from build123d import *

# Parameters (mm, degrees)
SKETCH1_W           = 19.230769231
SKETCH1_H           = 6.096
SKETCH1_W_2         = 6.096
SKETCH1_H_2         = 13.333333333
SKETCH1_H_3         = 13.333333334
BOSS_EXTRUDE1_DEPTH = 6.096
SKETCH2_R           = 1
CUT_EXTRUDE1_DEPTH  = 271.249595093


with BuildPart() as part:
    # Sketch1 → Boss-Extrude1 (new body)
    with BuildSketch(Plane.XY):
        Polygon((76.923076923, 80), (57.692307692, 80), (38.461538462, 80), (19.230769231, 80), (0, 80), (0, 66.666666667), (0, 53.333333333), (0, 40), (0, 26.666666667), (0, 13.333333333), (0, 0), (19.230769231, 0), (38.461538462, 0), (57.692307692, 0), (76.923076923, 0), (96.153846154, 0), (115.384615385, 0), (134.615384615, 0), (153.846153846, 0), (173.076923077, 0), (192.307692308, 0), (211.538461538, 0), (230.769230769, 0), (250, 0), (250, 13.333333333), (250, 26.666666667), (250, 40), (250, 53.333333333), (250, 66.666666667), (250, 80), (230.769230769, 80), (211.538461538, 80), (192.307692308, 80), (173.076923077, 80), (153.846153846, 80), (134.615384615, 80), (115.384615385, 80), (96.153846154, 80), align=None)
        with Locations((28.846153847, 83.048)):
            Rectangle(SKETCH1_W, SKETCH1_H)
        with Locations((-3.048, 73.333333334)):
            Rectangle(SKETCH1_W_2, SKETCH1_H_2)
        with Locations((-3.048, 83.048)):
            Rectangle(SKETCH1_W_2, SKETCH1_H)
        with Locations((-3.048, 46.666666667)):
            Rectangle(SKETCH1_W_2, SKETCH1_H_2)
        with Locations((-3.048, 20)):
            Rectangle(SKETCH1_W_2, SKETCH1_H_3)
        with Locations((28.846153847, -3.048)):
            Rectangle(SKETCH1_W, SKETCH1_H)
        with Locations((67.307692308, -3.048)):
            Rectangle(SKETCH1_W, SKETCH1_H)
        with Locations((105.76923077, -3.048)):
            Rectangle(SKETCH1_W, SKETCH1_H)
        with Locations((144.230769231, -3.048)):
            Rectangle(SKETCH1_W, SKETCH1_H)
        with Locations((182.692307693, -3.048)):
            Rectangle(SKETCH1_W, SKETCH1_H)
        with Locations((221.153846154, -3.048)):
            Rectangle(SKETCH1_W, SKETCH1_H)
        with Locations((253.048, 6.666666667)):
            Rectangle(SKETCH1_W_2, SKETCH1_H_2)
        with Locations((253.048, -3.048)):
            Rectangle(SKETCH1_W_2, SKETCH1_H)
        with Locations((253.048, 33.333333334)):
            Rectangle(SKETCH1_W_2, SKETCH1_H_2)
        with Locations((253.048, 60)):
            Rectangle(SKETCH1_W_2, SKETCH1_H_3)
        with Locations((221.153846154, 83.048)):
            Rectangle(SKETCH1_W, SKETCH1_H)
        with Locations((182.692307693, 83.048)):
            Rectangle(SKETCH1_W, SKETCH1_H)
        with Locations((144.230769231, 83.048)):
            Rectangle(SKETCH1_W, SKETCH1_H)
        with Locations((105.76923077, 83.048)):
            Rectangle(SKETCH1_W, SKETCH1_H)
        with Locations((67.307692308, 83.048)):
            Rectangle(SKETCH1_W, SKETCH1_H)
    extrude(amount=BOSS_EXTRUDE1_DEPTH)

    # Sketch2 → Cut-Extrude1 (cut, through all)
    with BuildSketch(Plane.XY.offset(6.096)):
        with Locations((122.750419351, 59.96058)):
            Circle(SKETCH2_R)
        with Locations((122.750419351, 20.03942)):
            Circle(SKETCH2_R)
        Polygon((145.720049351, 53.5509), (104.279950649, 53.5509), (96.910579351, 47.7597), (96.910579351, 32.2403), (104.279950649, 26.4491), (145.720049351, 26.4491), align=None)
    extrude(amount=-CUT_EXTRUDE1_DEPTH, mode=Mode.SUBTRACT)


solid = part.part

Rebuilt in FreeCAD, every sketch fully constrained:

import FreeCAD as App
import Part
import Sketcher

V = App.Vector
Q = App.Units.Quantity

doc = App.newDocument("Part")
body = doc.addObject("PartDesign::Body", "Body")

# Sketch on XY plane
sketch1 = doc.addObject("Sketcher::SketchObject", "Sketch")
body.addObject(sketch1)
sketch1.AttachmentSupport = (doc.XY_Plane, [""])
sketch1.MapMode = "FlatFace"
sketch1.addGeometry([
    Part.LineSegment(V(0, 67, 0), V(0, 53, 0)),  # 0
    Part.LineSegment(V(0, 53, 0), V(-6, 53, 0)),  # 1
    Part.LineSegment(V(-6, 53, 0), V(-6, 40, 0)),  # 2
    Part.LineSegment(V(-6, 40, 0), V(0, 40, 0)),  # 3
    Part.LineSegment(V(0, 40, 0), V(0, 27, 0)),  # 4
    Part.LineSegment(V(0, 27, 0), V(-6, 27, 0)),  # 5
    Part.LineSegment(V(-6, 27, 0), V(-6, 13, 0)),  # 6
    Part.LineSegment(V(-6, 13, 0), V(0, 13, 0)),  # 7
    Part.LineSegment(V(0, 13, 0), V(0, 0, 0)),  # 8
    Part.LineSegment(V(0, 0, 0), V(19, 0, 0)),  # 9
    Part.LineSegment(V(19, 0, 0), V(19, -6, 0)),  # 10
    Part.LineSegment(V(19, -6, 0), V(38, -6, 0)),  # 11
    Part.LineSegment(V(38, -6, 0), V(38, 0, 0)),  # 12
    Part.LineSegment(V(38, 0, 0), V(58, 0, 0)),  # 13
    Part.LineSegment(V(58, 0, 0), V(58, -6, 0)),  # 14
    Part.LineSegment(V(58, -6, 0), V(77, -6, 0)),  # 15
    Part.LineSegment(V(77, -6, 0), V(77, 0, 0)),  # 16
    Part.LineSegment(V(77, 0, 0), V(96, 0, 0)),  # 17
    Part.LineSegment(V(96, 0, 0), V(96, -6, 0)),  # 18
    Part.LineSegment(V(96, -6, 0), V(115, -6, 0)),  # 19
    Part.LineSegment(V(115, -6, 0), V(115, 0, 0)),  # 20
    Part.LineSegment(V(115, 0, 0), V(135, 0, 0)),  # 21
    Part.LineSegment(V(135, 0, 0), V(135, -6, 0)),  # 22
    Part.LineSegment(V(135, -6, 0), V(154, -6, 0)),  # 23
    Part.LineSegment(V(154, -6, 0), V(154, 0, 0)),  # 24
    Part.LineSegment(V(154, 0, 0), V(173, 0, 0)),  # 25
    Part.LineSegment(V(173, 0, 0), V(173, -6, 0)),  # 26
    Part.LineSegment(V(173, -6, 0), V(192, -6, 0)),  # 27
    Part.LineSegment(V(192, -6, 0), V(192, 0, 0)),  # 28
    Part.LineSegment(V(192, 0, 0), V(212, 0, 0)),  # 29
    Part.LineSegment(V(212, 0, 0), V(212, -6, 0)),  # 30
    Part.LineSegment(V(212, -6, 0), V(231, -6, 0)),  # 31
    Part.LineSegment(V(231, -6, 0), V(231, 0, 0)),  # 32
    Part.LineSegment(V(231, 0, 0), V(250, 0, 0)),  # 33
    Part.LineSegment(V(250, 0, 0), V(250, -6, 0)),  # 34
    Part.LineSegment(V(250, -6, 0), V(256, -6, 0)),  # 35
    Part.LineSegment(V(256, -6, 0), V(256, 13, 0)),  # 36
    Part.LineSegment(V(256, 13, 0), V(250, 13, 0)),  # 37
    Part.LineSegment(V(250, 13, 0), V(250, 27, 0)),  # 38
    Part.LineSegment(V(250, 27, 0), V(256, 27, 0)),  # 39
    Part.LineSegment(V(256, 27, 0), V(256, 40, 0)),  # 40
    Part.LineSegment(V(256, 40, 0), V(250, 40, 0)),  # 41
    Part.LineSegment(V(250, 40, 0), V(250, 53, 0)),  # 42
    Part.LineSegment(V(250, 53, 0), V(256, 53, 0)),  # 43
    Part.LineSegment(V(256, 53, 0), V(256, 67, 0)),  # 44
    Part.LineSegment(V(256, 67, 0), V(250, 67, 0)),  # 45
    Part.LineSegment(V(250, 67, 0), V(250, 80, 0)),  # 46
    Part.LineSegment(V(250, 80, 0), V(231, 80, 0)),  # 47
    Part.LineSegment(V(231, 80, 0), V(231, 86, 0)),  # 48
    Part.LineSegment(V(231, 86, 0), V(212, 86, 0)),  # 49
    Part.LineSegment(V(212, 86, 0), V(212, 80, 0)),  # 50
    Part.LineSegment(V(212, 80, 0), V(192, 80, 0)),  # 51
    Part.LineSegment(V(192, 80, 0), V(192, 86, 0)),  # 52
    Part.LineSegment(V(192, 86, 0), V(173, 86, 0)),  # 53
    Part.LineSegment(V(173, 86, 0), V(173, 80, 0)),  # 54
    Part.LineSegment(V(173, 80, 0), V(154, 80, 0)),  # 55
    Part.LineSegment(V(154, 80, 0), V(154, 86, 0)),  # 56
    Part.LineSegment(V(154, 86, 0), V(135, 86, 0)),  # 57
    Part.LineSegment(V(135, 86, 0), V(135, 80, 0)),  # 58
    Part.LineSegment(V(135, 80, 0), V(115, 80, 0)),  # 59
    Part.LineSegment(V(115, 80, 0), V(115, 86, 0)),  # 60
    Part.LineSegment(V(115, 86, 0), V(96, 86, 0)),  # 61
    Part.LineSegment(V(96, 86, 0), V(96, 80, 0)),  # 62
    Part.LineSegment(V(96, 80, 0), V(77, 80, 0)),  # 63
    Part.LineSegment(V(77, 80, 0), V(77, 86, 0)),  # 64
    Part.LineSegment(V(77, 86, 0), V(58, 86, 0)),  # 65
    Part.LineSegment(V(58, 86, 0), V(58, 80, 0)),  # 66
    Part.LineSegment(V(58, 80, 0), V(38, 80, 0)),  # 67
    Part.LineSegment(V(38, 80, 0), V(38, 86, 0)),  # 68
    Part.LineSegment(V(38, 86, 0), V(19, 86, 0)),  # 69
    Part.LineSegment(V(19, 86, 0), V(19, 80, 0)),  # 70
    Part.LineSegment(V(19, 80, 0), V(0, 80, 0)),  # 71
    Part.LineSegment(V(0, 80, 0), V(0, 86, 0)),  # 72
    Part.LineSegment(V(0, 86, 0), V(-6, 86, 0)),  # 73
    Part.LineSegment(V(-6, 86, 0), V(-6, 67, 0)),  # 74
    Part.LineSegment(V(-6, 67, 0), V(0, 67, 0)),  # 75
], False)
sketch1.addConstraint([
    Sketcher.Constraint("Coincident", 0, 2, 1, 1),
    Sketcher.Constraint("Coincident", 1, 2, 2, 1),
    Sketcher.Constraint("Coincident", 2, 2, 3, 1),
    Sketcher.Constraint("Coincident", 3, 2, 4, 1),
    Sketcher.Constraint("Coincident", 4, 2, 5, 1),
    Sketcher.Constraint("Coincident", 5, 2, 6, 1),
    Sketcher.Constraint("Coincident", 6, 2, 7, 1),
    Sketcher.Constraint("Coincident", 7, 2, 8, 1),
    Sketcher.Constraint("Coincident", 8, 2, 9, 1),
    Sketcher.Constraint("Coincident", 9, 2, 10, 1),
    Sketcher.Constraint("Coincident", 10, 2, 11, 1),
    Sketcher.Constraint("Coincident", 11, 2, 12, 1),
    Sketcher.Constraint("Coincident", 12, 2, 13, 1),
    Sketcher.Constraint("Coincident", 13, 2, 14, 1),
    Sketcher.Constraint("Coincident", 14, 2, 15, 1),
    Sketcher.Constraint("Coincident", 15, 2, 16, 1),
    Sketcher.Constraint("Coincident", 16, 2, 17, 1),
    Sketcher.Constraint("Coincident", 17, 2, 18, 1),
    Sketcher.Constraint("Coincident", 18, 2, 19, 1),
    Sketcher.Constraint("Coincident", 19, 2, 20, 1),
    Sketcher.Constraint("Coincident", 20, 2, 21, 1),
    Sketcher.Constraint("Coincident", 21, 2, 22, 1),
    Sketcher.Constraint("Coincident", 22, 2, 23, 1),
    Sketcher.Constraint("Coincident", 23, 2, 24, 1),
    Sketcher.Constraint("Coincident", 24, 2, 25, 1),
    Sketcher.Constraint("Coincident", 25, 2, 26, 1),
    Sketcher.Constraint("Coincident", 26, 2, 27, 1),
    Sketcher.Constraint("Coincident", 27, 2, 28, 1),
    Sketcher.Constraint("Coincident", 28, 2, 29, 1),
    Sketcher.Constraint("Coincident", 29, 2, 30, 1),
    Sketcher.Constraint("Coincident", 30, 2, 31, 1),
    Sketcher.Constraint("Coincident", 31, 2, 32, 1),
    Sketcher.Constraint("Coincident", 32, 2, 33, 1),
    Sketcher.Constraint("Coincident", 33, 2, 34, 1),
    Sketcher.Constraint("Coincident", 34, 2, 35, 1),
    Sketcher.Constraint("Coincident", 35, 2, 36, 1),
    Sketcher.Constraint("Coincident", 36, 2, 37, 1),
    Sketcher.Constraint("Coincident", 37, 2, 38, 1),
    Sketcher.Constraint("Coincident", 38, 2, 39, 1),
    Sketcher.Constraint("Coincident", 39, 2, 40, 1),
    Sketcher.Constraint("Coincident", 40, 2, 41, 1),
    Sketcher.Constraint("Coincident", 41, 2, 42, 1),
    Sketcher.Constraint("Coincident", 42, 2, 43, 1),
    Sketcher.Constraint("Coincident", 43, 2, 44, 1),
    Sketcher.Constraint("Coincident", 44, 2, 45, 1),
    Sketcher.Constraint("Coincident", 45, 2, 46, 1),
    Sketcher.Constraint("Coincident", 46, 2, 47, 1),
    Sketcher.Constraint("Coincident", 47, 2, 48, 1),
    Sketcher.Constraint("Coincident", 48, 2, 49, 1),
    Sketcher.Constraint("Coincident", 49, 2, 50, 1),
    Sketcher.Constraint("Coincident", 50, 2, 51, 1),
    Sketcher.Constraint("Coincident", 51, 2, 52, 1),
    Sketcher.Constraint("Coincident", 52, 2, 53, 1),
    Sketcher.Constraint("Coincident", 53, 2, 54, 1),
    Sketcher.Constraint("Coincident", 54, 2, 55, 1),
    Sketcher.Constraint("Coincident", 55, 2, 56, 1),
    Sketcher.Constraint("Coincident", 56, 2, 57, 1),
    Sketcher.Constraint("Coincident", 57, 2, 58, 1),
    Sketcher.Constraint("Coincident", 58, 2, 59, 1),
    Sketcher.Constraint("Coincident", 59, 2, 60, 1),
    Sketcher.Constraint("Coincident", 60, 2, 61, 1),
    Sketcher.Constraint("Coincident", 61, 2, 62, 1),
    Sketcher.Constraint("Coincident", 62, 2, 63, 1),
    Sketcher.Constraint("Coincident", 63, 2, 64, 1),
    Sketcher.Constraint("Coincident", 64, 2, 65, 1),
    Sketcher.Constraint("Coincident", 65, 2, 66, 1),
    Sketcher.Constraint("Coincident", 66, 2, 67, 1),
    Sketcher.Constraint("Coincident", 67, 2, 68, 1),
    Sketcher.Constraint("Coincident", 68, 2, 69, 1),
    Sketcher.Constraint("Coincident", 69, 2, 70, 1),
    Sketcher.Constraint("Coincident", 70, 2, 71, 1),
    Sketcher.Constraint("Coincident", 71, 2, 72, 1),
    Sketcher.Constraint("Coincident", 72, 2, 73, 1),
    Sketcher.Constraint("Coincident", 73, 2, 74, 1),
    Sketcher.Constraint("Coincident", 74, 2, 75, 1),
    Sketcher.Constraint("Coincident", 75, 2, 0, 1),
    Sketcher.Constraint("Vertical", 0),
    Sketcher.Constraint("Horizontal", 1),
    Sketcher.Constraint("Vertical", 2),
    Sketcher.Constraint("Horizontal", 3),
    Sketcher.Constraint("Vertical", 4),
    Sketcher.Constraint("Horizontal", 5),
    Sketcher.Constraint("Vertical", 6),
    Sketcher.Constraint("Horizontal", 7),
    Sketcher.Constraint("Vertical", 8),
    Sketcher.Constraint("Horizontal", 9),
    Sketcher.Constraint("Vertical", 10),
    Sketcher.Constraint("Horizontal", 11),
    Sketcher.Constraint("Vertical", 12),
    Sketcher.Constraint("Horizontal", 13),
    Sketcher.Constraint("Vertical", 14),
    Sketcher.Constraint("Horizontal", 15),
    Sketcher.Constraint("Vertical", 16),
    Sketcher.Constraint("Horizontal", 17),
    Sketcher.Constraint("Vertical", 18),
    Sketcher.Constraint("Horizontal", 19),
    Sketcher.Constraint("Vertical", 20),
    Sketcher.Constraint("Horizontal", 21),
    Sketcher.Constraint("Vertical", 22),
    Sketcher.Constraint("Horizontal", 23),
    Sketcher.Constraint("Vertical", 24),
    Sketcher.Constraint("Horizontal", 25),
    Sketcher.Constraint("Vertical", 26),
    Sketcher.Constraint("Horizontal", 27),
    Sketcher.Constraint("Vertical", 28),
    Sketcher.Constraint("Horizontal", 29),
    Sketcher.Constraint("Vertical", 30),
    Sketcher.Constraint("Horizontal", 31),
    Sketcher.Constraint("Vertical", 32),
    Sketcher.Constraint("Horizontal", 33),
    Sketcher.Constraint("Vertical", 34),
    Sketcher.Constraint("Horizontal", 35),
    Sketcher.Constraint("Vertical", 36),
    Sketcher.Constraint("Horizontal", 37),
    Sketcher.Constraint("Vertical", 38),
    Sketcher.Constraint("Horizontal", 39),
    Sketcher.Constraint("Vertical", 40),
    Sketcher.Constraint("Horizontal", 41),
    Sketcher.Constraint("Vertical", 42),
    Sketcher.Constraint("Horizontal", 43),
    Sketcher.Constraint("Vertical", 44),
    Sketcher.Constraint("Horizontal", 45),
    Sketcher.Constraint("Vertical", 46),
    Sketcher.Constraint("Horizontal", 47),
    Sketcher.Constraint("Vertical", 48),
    Sketcher.Constraint("Horizontal", 49),
    Sketcher.Constraint("Vertical", 50),
    Sketcher.Constraint("Horizontal", 51),
    Sketcher.Constraint("Vertical", 52),
    Sketcher.Constraint("Horizontal", 53),
    Sketcher.Constraint("Vertical", 54),
    Sketcher.Constraint("Horizontal", 55),
    Sketcher.Constraint("Vertical", 56),
    Sketcher.Constraint("Horizontal", 57),
    Sketcher.Constraint("Vertical", 58),
    Sketcher.Constraint("Horizontal", 59),
    Sketcher.Constraint("Vertical", 60),
    Sketcher.Constraint("Horizontal", 61),
    Sketcher.Constraint("Vertical", 62),
    Sketcher.Constraint("Horizontal", 63),
    Sketcher.Constraint("Vertical", 64),
    Sketcher.Constraint("Horizontal", 65),
    Sketcher.Constraint("Vertical", 66),
    Sketcher.Constraint("Horizontal", 67),
    Sketcher.Constraint("Vertical", 68),
    Sketcher.Constraint("Horizontal", 69),
    Sketcher.Constraint("Vertical", 70),
    Sketcher.Constraint("Horizontal", 71),
    Sketcher.Constraint("Vertical", 72),
    Sketcher.Constraint("Horizontal", 73),
    Sketcher.Constraint("Vertical", 74),
    Sketcher.Constraint("Horizontal", 75),
    Sketcher.Constraint("Coincident", 8, 2, -1, 1),
    Sketcher.Constraint("PointOnObject", 0, 2, -2),
    Sketcher.Constraint("PointOnObject", 3, 2, -2),
    Sketcher.Constraint("PointOnObject", 12, 2, -1),
    Sketcher.Constraint("PointOnObject", 16, 2, -1),
    Sketcher.Constraint("PointOnObject", 20, 2, -1),
    Sketcher.Constraint("PointOnObject", 24, 2, -1),
    Sketcher.Constraint("PointOnObject", 28, 2, -1),
    Sketcher.Constraint("PointOnObject", 32, 2, -1),
    Sketcher.Constraint("PointOnObject", 71, 2, -2),
    Sketcher.Constraint("Horizontal", 11, 2, 14, 2),
    Sketcher.Constraint("Horizontal", 15, 2, 18, 2),
    Sketcher.Constraint("Horizontal", 19, 2, 22, 2),
    Sketcher.Constraint("Horizontal", 23, 2, 26, 2),
    Sketcher.Constraint("Horizontal", 27, 2, 30, 2),
    Sketcher.Constraint("Horizontal", 31, 2, 34, 2),
    Sketcher.Constraint("Horizontal", 7, 2, 36, 2),
    Sketcher.Constraint("Horizontal", 5, 2, 38, 2),
    Sketcher.Constraint("Horizontal", 3, 2, 40, 2),
    Sketcher.Constraint("Horizontal", 1, 2, 42, 2),
    Sketcher.Constraint("Horizontal", 47, 2, 50, 2),
    Sketcher.Constraint("Horizontal", 49, 2, 52, 2),
    Sketcher.Constraint("Horizontal", 51, 2, 54, 2),
    Sketcher.Constraint("Horizontal", 53, 2, 56, 2),
    Sketcher.Constraint("Horizontal", 55, 2, 58, 2),
    Sketcher.Constraint("Horizontal", 57, 2, 60, 2),
    Sketcher.Constraint("Horizontal", 59, 2, 62, 2),
    Sketcher.Constraint("Horizontal", 61, 2, 64, 2),
    Sketcher.Constraint("Horizontal", 63, 2, 66, 2),
    Sketcher.Constraint("Horizontal", 65, 2, 68, 2),
    Sketcher.Constraint("Horizontal", 67, 2, 70, 2),
    Sketcher.Constraint("Horizontal", 69, 2, 72, 2),
    Sketcher.Constraint("Horizontal", 45, 2, 74, 2),
    Sketcher.Constraint("Vertical", 2, 2, 5, 2),
    Sketcher.Constraint("Vertical", 34, 2, 37, 2),
    Sketcher.Constraint("Vertical", 36, 2, 39, 2),
    Sketcher.Constraint("Vertical", 38, 2, 41, 2),
    Sketcher.Constraint("Vertical", 40, 2, 43, 2),
    Sketcher.Constraint("Vertical", 42, 2, 45, 2),
    Sketcher.Constraint("Vertical", 32, 2, 47, 2),
    Sketcher.Constraint("Vertical", 30, 2, 49, 2),
    Sketcher.Constraint("Vertical", 28, 2, 51, 2),
    Sketcher.Constraint("Vertical", 26, 2, 53, 2),
    Sketcher.Constraint("Vertical", 24, 2, 55, 2),
    Sketcher.Constraint("Vertical", 22, 2, 57, 2),
    Sketcher.Constraint("Vertical", 20, 2, 59, 2),
    Sketcher.Constraint("Vertical", 18, 2, 61, 2),
    Sketcher.Constraint("Vertical", 16, 2, 63, 2),
    Sketcher.Constraint("Vertical", 14, 2, 65, 2),
    Sketcher.Constraint("Vertical", 12, 2, 67, 2),
    Sketcher.Constraint("Vertical", 10, 2, 69, 2),
    Sketcher.Constraint("Vertical", 6, 2, 73, 2),
    Sketcher.Constraint("Equal", 9, 11),
    Sketcher.Constraint("Equal", 11, 13),
    Sketcher.Constraint("Equal", 13, 15),
    Sketcher.Constraint("Equal", 15, 17),
    Sketcher.Constraint("Equal", 17, 19),
    Sketcher.Constraint("Equal", 19, 21),
    Sketcher.Constraint("Equal", 21, 23),
    Sketcher.Constraint("Equal", 23, 25),
    Sketcher.Constraint("Equal", 25, 27),
    Sketcher.Constraint("Equal", 27, 29),
    Sketcher.Constraint("Equal", 29, 31),
    Sketcher.Constraint("Equal", 31, 33),
    Sketcher.Constraint("Equal", 7, 35),
    Sketcher.Constraint("Equal", 0, 2),
    Sketcher.Constraint("Equal", 2, 4),
    Sketcher.Constraint("Equal", 4, 6),
    Sketcher.Constraint("Equal", 6, 8),
    Sketcher.Constraint("Equal", 75, 10),
    Sketcher.Constraint("Equal", 44, 46),
    Sketcher.Constraint("Equal", 34, 48),
    Sketcher.Constraint("DistanceX", 1, 2, 1, 1, Q("0.24 in")),
    Sketcher.Constraint("DistanceX", 9, 1, 9, 2, 19.230769),
    Sketcher.Constraint("DistanceY", -1, 1, 2, 2, 40.0),
])
pad1 = doc.addObject("PartDesign::Pad", "Pad")
body.addObject(pad1)
pad1.Profile = sketch1
pad1.Length = Q("0.24 in")

# Sketch on XY plane
sketch2 = doc.addObject("Sketcher::SketchObject", "Sketch001")
body.addObject(sketch2)
sketch2.AttachmentSupport = (doc.XY_Plane, [""])
sketch2.MapMode = "FlatFace"
sketch2.AttachmentOffset = App.Placement(V(0, 0, 0.24 * 25.4), App.Rotation())
sketch2.addGeometry([
    Part.Circle(V(122.8, 60, 0), V(0, 0, 1), 1),  # 0
    Part.Circle(V(122.8, 20, 0), V(0, 0, 1), 1),  # 1
    Part.LineSegment(V(145.7, 53.6, 0), V(104.3, 53.6, 0)),  # 2
    Part.LineSegment(V(104.3, 53.6, 0), V(96.9, 47.8, 0)),  # 3
    Part.LineSegment(V(96.9, 47.8, 0), V(96.9, 32.2, 0)),  # 4
    Part.LineSegment(V(96.9, 32.2, 0), V(104.3, 26.4, 0)),  # 5
    Part.LineSegment(V(104.3, 26.4, 0), V(145.7, 26.4, 0)),  # 6
    Part.LineSegment(V(145.7, 26.4, 0), V(145.7, 53.6, 0)),  # 7
], False)
sketch2.addConstraint([
    Sketcher.Constraint("Coincident", 2, 2, 3, 1),
    Sketcher.Constraint("Coincident", 3, 2, 4, 1),
    Sketcher.Constraint("Coincident", 4, 2, 5, 1),
    Sketcher.Constraint("Coincident", 5, 2, 6, 1),
    Sketcher.Constraint("Coincident", 6, 2, 7, 1),
    Sketcher.Constraint("Coincident", 7, 2, 2, 1),
    Sketcher.Constraint("Horizontal", 2),
    Sketcher.Constraint("Vertical", 4),
    Sketcher.Constraint("Horizontal", 6),
    Sketcher.Constraint("Vertical", 7),
    Sketcher.Constraint("Equal", 0, 1),
    Sketcher.Constraint("Vertical", 0, 3, 1, 3),
    Sketcher.Constraint("Vertical", 2, 2, 5, 2),
    Sketcher.Constraint("Equal", 3, 5),
    Sketcher.Constraint("Diameter", 0, 2.0),
    Sketcher.Constraint("DistanceY", 4, 2, 4, 1, Q("0.611 in")),
    Sketcher.Constraint("DistanceY", 7, 1, 7, 2, Q("1.067 in")),
    Sketcher.Constraint("Distance", 3, Q("0.369 in")),
    Sketcher.Constraint("DistanceX", 2, 2, 2, 1, Q("1.6314999 in")),
    Sketcher.Constraint("DistanceY", -1, 1, 2, 2, 53.5509),
    Sketcher.Constraint("DistanceX", -1, 1, 0, 3, 122.750419),
    Sketcher.Constraint("DistanceY", -1, 1, 0, 3, 59.96058),
    Sketcher.Constraint("DistanceY", -1, 1, 1, 3, 20.03942),
    Sketcher.Constraint("DistanceX", -1, 1, 2, 2, 104.279951),
])
pocket1 = doc.addObject("PartDesign::Pocket", "Pocket")
body.addObject(pocket1)
pocket1.Profile = sketch2
pocket1.Type = "ThroughAll"

doc.recompute()
